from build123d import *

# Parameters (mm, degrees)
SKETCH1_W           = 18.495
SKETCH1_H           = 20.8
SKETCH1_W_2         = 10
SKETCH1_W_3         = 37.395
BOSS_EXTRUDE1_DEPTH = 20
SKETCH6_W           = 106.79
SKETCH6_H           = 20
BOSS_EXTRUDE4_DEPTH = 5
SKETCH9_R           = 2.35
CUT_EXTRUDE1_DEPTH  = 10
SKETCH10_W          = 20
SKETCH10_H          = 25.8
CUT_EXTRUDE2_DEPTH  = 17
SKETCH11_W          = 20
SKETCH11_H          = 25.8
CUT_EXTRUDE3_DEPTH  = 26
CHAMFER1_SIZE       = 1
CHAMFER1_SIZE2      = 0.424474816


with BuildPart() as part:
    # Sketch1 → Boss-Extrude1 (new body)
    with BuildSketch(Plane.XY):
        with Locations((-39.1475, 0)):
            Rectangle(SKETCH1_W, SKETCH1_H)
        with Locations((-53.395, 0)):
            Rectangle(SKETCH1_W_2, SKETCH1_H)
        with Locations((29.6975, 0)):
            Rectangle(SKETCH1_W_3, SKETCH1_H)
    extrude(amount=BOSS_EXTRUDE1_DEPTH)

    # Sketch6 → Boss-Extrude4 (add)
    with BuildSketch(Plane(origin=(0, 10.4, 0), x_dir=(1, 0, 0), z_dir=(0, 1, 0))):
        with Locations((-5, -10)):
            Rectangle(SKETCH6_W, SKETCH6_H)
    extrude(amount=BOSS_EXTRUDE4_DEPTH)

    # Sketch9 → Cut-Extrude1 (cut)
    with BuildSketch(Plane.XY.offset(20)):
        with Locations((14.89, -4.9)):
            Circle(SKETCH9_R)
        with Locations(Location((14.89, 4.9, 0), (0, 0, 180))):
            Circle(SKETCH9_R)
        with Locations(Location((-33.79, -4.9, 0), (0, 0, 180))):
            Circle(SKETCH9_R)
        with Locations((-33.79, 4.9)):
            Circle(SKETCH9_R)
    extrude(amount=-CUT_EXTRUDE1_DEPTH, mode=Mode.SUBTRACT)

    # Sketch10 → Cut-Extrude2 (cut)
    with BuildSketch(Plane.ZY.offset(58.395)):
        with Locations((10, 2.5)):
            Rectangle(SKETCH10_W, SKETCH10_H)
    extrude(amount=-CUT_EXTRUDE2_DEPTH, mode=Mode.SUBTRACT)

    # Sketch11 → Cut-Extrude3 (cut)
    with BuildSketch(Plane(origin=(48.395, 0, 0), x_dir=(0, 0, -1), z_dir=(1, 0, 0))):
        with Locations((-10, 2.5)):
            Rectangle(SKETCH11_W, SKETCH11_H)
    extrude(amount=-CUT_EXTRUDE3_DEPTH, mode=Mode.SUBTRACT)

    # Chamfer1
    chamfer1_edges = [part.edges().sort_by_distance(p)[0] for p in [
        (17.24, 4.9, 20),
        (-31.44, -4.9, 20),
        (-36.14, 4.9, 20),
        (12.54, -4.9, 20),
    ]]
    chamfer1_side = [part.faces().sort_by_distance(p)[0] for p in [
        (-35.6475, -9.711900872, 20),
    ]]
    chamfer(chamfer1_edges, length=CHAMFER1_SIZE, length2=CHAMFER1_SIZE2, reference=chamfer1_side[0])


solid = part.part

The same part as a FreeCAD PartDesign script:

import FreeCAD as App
import Part
import Sketcher

V = App.Vector
Q = App.Units.Quantity


def edges_at(feature, points):
    """Names of the edges that pass closest to the given points."""
    edges = feature.Shape.Edges
    near = lambda p: min(range(len(edges)), key=lambda i: edges[i].distToShape(Part.Vertex(*p))[0])
    return sorted({f"Edge{near(p) + 1}" for p in points})


def add_polygon(sketch, points):
    """Adds a closed chain of lines whose ends are joined by coincident constraints."""
    first, n = sketch.GeometryCount, len(points)
    for a, b in zip(points, points[1:] + points[:1]):
        sketch.addGeometry(Part.LineSegment(App.Vector(*a, 0), App.Vector(*b, 0)), False)
    for i in range(n):
        sketch.addConstraint(Sketcher.Constraint("Coincident", first + i, 2, first + (i + 1) % n, 1))

doc = App.newDocument("Part")
body = doc.addObject("PartDesign::Body", "Body")
body.AllowCompound = True

sketch1 = doc.addObject("Sketcher::SketchObject", "Sketch")
body.addObject(sketch1)
sketch1.AttachmentSupport = (doc.XY_Plane, [""])
sketch1.MapMode = "FlatFace"
add_polygon(sketch1, [(-30, -10), (-30, 10), (-58, 10), (-58, -10)])
add_polygon(sketch1, [(11, 10), (11, -10), (48, -10), (48, 10)])
sketch1.addConstraint(Sketcher.Constraint("Vertical", 0))
sketch1.addConstraint(Sketcher.Constraint("Horizontal", 1))
sketch1.addConstraint(Sketcher.Constraint("Vertical", 2))
sketch1.addConstraint(Sketcher.Constraint("Horizontal", 3))
sketch1.addConstraint(Sketcher.Constraint("Vertical", 4))
sketch1.addConstraint(Sketcher.Constraint("Horizontal", 5))
sketch1.addConstraint(Sketcher.Constraint("Vertical", 6))
sketch1.addConstraint(Sketcher.Constraint("Horizontal", 7))
sketch1.addConstraint(Sketcher.Constraint("Horizontal", 3, 2, 4, 2))
sketch1.addConstraint(Sketcher.Constraint("Horizontal", 1, 2, 6, 2))
sketch1.addConstraint(Sketcher.Constraint("DistanceY", 0, 1, 0, 2, Q("20.8 mm")))
sketch1.addConstraint(Sketcher.Constraint("DistanceX", -1, 1, 4, 2, Q("11 mm")))
sketch1.addConstraint(Sketcher.Constraint("DistanceX", 0, 2, -1, 1, Q("29.9 mm")))
sketch1.addConstraint(Sketcher.Constraint("DistanceY", -1, 1, 0, 2, Q("10.4 mm")))
sketch1.addConstraint(Sketcher.Constraint("DistanceX", 1, 2, 1, 1, Q("28.495 mm")))
sketch1.addConstraint(Sketcher.Constraint("DistanceX", 5, 1, 5, 2, Q("37.395 mm")))
pad1 = doc.addObject("PartDesign::Pad", "Pad")
body.addObject(pad1)
pad1.Profile = sketch1
pad1.Length = 20

sketch2 = doc.addObject("Sketcher::SketchObject", "Sketch001")
body.addObject(sketch2)
sketch2.AttachmentSupport = (doc.XZ_Plane, [""])
sketch2.MapMode = "FlatFace"
sketch2.AttachmentOffset = App.Placement(V(0, 0, -10.4), App.Rotation())
add_polygon(sketch2, [(-58, 0), (-58, 20), (48, 20), (48, 0)])
sketch2.addConstraint(Sketcher.Constraint("Vertical", 0))
sketch2.addConstraint(Sketcher.Constraint("Horizontal", 1))
sketch2.addConstraint(Sketcher.Constraint("Vertical", 2))
sketch2.addConstraint(Sketcher.Constraint("Horizontal", 3))
sketch2.addConstraint(Sketcher.Constraint("PointOnObject", 2, 2, -1))
sketch2.addConstraint(Sketcher.Constraint("DistanceY", 0, 1, 0, 2, Q("20 mm")))
sketch2.addConstraint(Sketcher.Constraint("DistanceX", 1, 1, 1, 2, Q("106.79 mm")))
sketch2.addConstraint(Sketcher.Constraint("DistanceX", 0, 2, -1, 1, Q("58.395 mm")))
pad2 = doc.addObject("PartDesign::Pad", "Pad001")
body.addObject(pad2)
pad2.Profile = sketch2
pad2.Length = 5
pad2.Reversed = True

sketch3 = doc.addObject("Sketcher::SketchObject", "Sketch002")
body.addObject(sketch3)
sketch3.AttachmentSupport = (doc.XY_Plane, [""])
sketch3.MapMode = "FlatFace"
sketch3.AttachmentOffset = App.Placement(V(0, 0, 20), App.Rotation())
sketch3.addGeometry(Part.Circle(V(14.9, -4.9, 0), V(0, 0, 1), 2.4), False)
sketch3.addGeometry(Part.Circle(V(14.9, 4.9, 0), V(0, 0, 1), 2.4), False)
sketch3.addGeometry(Part.Circle(V(-33.8, -4.9, 0), V(0, 0, 1), 2.4), False)
sketch3.addGeometry(Part.Circle(V(-33.8, 4.9, 0), V(0, 0, 1), 2.4), False)
sketch3.addConstraint(Sketcher.Constraint("Equal", 0, 1))
sketch3.addConstraint(Sketcher.Constraint("Equal", 1, 2))
sketch3.addConstraint(Sketcher.Constraint("Equal", 2, 3))
sketch3.addConstraint(Sketcher.Constraint("Symmetric", 0, 3, 1, 3, -1))
sketch3.addConstraint(Sketcher.Constraint("Symmetric", 2, 3, 3, 3, -1))
sketch3.addConstraint(Sketcher.Constraint("Horizontal", 0, 3, 2, 3))
sketch3.addConstraint(Sketcher.Constraint("Diameter", 0, Q("4.7 mm")))
sketch3.addConstraint(Sketcher.Constraint("DistanceY", 0, 3, -1, 1, Q("4.9 mm")))
sketch3.addConstraint(Sketcher.Constraint("DistanceX", -1, 1, 0, 3, Q("14.89 mm")))
sketch3.addConstraint(Sketcher.Constraint("DistanceX", 2, 3, -1, 1, Q("33.79 mm")))
pocket1 = doc.addObject("PartDesign::Pocket", "Pocket")
body.addObject(pocket1)
pocket1.Profile = sketch3
pocket1.Length = 10

sketch4 = doc.addObject("Sketcher::SketchObject", "Sketch003")
body.addObject(sketch4)
sketch4.AttachmentSupport = (doc.YZ_Plane, [""])
sketch4.MapMode = "FlatFace"
sketch4.AttachmentOffset = App.Placement(V(0, 0, -58.395), App.Rotation())
add_polygon(sketch4, [(15, 0), (-10, 0), (-10, 20), (15, 20)])
sketch4.addConstraint(Sketcher.Constraint("Horizontal", 0))
sketch4.addConstraint(Sketcher.Constraint("Vertical", 1))
sketch4.addConstraint(Sketcher.Constraint("Horizontal", 2))
sketch4.addConstraint(Sketcher.Constraint("Vertical", 3))
sketch4.addConstraint(Sketcher.Constraint("PointOnObject", 0, 2, -1))
sketch4.addConstraint(Sketcher.Constraint("DistanceY", 1, 1, 1, 2, Q("20 mm")))
sketch4.addConstraint(Sketcher.Constraint("DistanceX", 0, 2, 0, 1, Q("25.8 mm")))
sketch4.addConstraint(Sketcher.Constraint("DistanceX", 0, 2, -1, 1, Q("10.4 mm")))
pocket2 = doc.addObject("PartDesign::Pocket", "Pocket001")
body.addObject(pocket2)
pocket2.Profile = sketch4
pocket2.Length = 17
pocket2.Reversed = True

sketch5 = doc.addObject("Sketcher::SketchObject", "Sketch004")
body.addObject(sketch5)
sketch5.AttachmentSupport = (doc.YZ_Plane, [""])
sketch5.MapMode = "FlatFace"
sketch5.AttachmentOffset = App.Placement(V(0, 0, 48.395), App.Rotation())
add_polygon(sketch5, [(15, 20), (-10, 20), (-10, 0), (15, 0)])
sketch5.addConstraint(Sketcher.Constraint("Horizontal", 0))
sketch5.addConstraint(Sketcher.Constraint("Vertical", 1))
sketch5.addConstraint(Sketcher.Constraint("Horizontal", 2))
sketch5.addConstraint(Sketcher.Constraint("Vertical", 3))
sketch5.addConstraint(Sketcher.Constraint("PointOnObject", 1, 2, -1))
sketch5.addConstraint(Sketcher.Constraint("DistanceY", 1, 2, 1, 1, Q("20 mm")))
sketch5.addConstraint(Sketcher.Constraint("DistanceX", 0, 2, 0, 1, Q("25.8 mm")))
sketch5.addConstraint(Sketcher.Constraint("DistanceX", 0, 2, -1, 1, Q("10.4 mm")))
pocket3 = doc.addObject("PartDesign::Pocket", "Pocket002")
body.addObject(pocket3)
pocket3.Profile = sketch5
pocket3.Length = 26
doc.recompute()

chamfer = doc.addObject("PartDesign::Chamfer", "Chamfer")
body.addObject(chamfer)
chamfer.Base = (pocket3, edges_at(pocket3, [
    (17.24, 4.9, 20),
    (-31.44, -4.9, 20),
    (-36.14, 4.9, 20),
    (12.54, -4.9, 20),
]))
chamfer.ChamferType = "Two distances"
chamfer.Size = 1
chamfer.Size2 = 0.424475

doc.recompute()
